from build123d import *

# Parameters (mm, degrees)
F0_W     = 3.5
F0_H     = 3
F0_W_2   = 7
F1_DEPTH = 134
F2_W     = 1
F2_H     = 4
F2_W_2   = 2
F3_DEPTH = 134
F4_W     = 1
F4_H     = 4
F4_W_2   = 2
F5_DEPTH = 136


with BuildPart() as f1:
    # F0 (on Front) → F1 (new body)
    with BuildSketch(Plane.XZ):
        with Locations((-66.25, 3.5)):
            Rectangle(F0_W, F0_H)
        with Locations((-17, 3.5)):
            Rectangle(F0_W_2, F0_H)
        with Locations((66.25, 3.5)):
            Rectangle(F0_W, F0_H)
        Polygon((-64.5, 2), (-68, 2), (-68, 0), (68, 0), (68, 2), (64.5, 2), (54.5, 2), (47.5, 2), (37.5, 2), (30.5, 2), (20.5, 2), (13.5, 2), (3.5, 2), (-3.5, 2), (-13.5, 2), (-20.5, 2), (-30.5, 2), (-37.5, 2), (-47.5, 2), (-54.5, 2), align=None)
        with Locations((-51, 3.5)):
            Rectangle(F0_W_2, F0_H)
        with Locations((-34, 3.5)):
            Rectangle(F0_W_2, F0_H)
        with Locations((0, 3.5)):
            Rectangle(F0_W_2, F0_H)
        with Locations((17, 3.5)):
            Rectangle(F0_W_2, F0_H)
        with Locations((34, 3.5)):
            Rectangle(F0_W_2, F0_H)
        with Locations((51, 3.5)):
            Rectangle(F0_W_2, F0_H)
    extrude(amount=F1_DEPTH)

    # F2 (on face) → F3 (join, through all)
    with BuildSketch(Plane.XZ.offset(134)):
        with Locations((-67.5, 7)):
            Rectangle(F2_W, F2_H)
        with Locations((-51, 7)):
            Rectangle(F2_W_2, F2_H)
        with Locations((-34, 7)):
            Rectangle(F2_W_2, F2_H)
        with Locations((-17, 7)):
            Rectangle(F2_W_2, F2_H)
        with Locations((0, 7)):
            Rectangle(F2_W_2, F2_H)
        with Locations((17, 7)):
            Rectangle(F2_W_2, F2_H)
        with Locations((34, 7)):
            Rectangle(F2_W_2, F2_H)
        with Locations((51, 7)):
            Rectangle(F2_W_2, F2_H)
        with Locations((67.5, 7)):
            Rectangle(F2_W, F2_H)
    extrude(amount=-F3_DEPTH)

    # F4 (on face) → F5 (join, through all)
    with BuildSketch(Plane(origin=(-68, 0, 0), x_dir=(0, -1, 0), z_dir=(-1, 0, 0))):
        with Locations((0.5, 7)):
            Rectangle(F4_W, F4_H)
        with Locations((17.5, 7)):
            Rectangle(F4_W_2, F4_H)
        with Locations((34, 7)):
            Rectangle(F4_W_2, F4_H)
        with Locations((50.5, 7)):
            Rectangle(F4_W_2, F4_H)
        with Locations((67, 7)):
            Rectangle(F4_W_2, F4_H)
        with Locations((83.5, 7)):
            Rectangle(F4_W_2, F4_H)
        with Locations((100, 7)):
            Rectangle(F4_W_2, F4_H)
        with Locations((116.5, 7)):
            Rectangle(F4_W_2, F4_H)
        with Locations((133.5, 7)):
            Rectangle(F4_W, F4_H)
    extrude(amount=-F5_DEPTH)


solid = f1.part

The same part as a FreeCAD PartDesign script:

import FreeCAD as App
import Part
import Sketcher
from FreeCAD import Vector
Q = App.Units.Quantity


def add_polygon(sketch, points):
    """Adds a closed chain of lines whose ends are joined by coincident constraints."""
    first, n = sketch.GeometryCount, len(points)
    for a, b in zip(points, points[1:] + points[:1]):
        sketch.addGeometry(Part.LineSegment(App.Vector(*a, 0), App.Vector(*b, 0)), False)
    for i in range(n):
        sketch.addConstraint(Sketcher.Constraint("Coincident", first + i, 2, first + (i + 1) % n, 1))

doc = App.newDocument("Part")
body = doc.addObject("PartDesign::Body", "Body")

sketch1 = body.newObject("Sketcher::SketchObject", "Sketch")
sketch1.AttachmentSupport = (doc.getObject("XZ_Plane"), [""])
sketch1.MapMode = "FlatFace"
add_polygon(sketch1, [(-68, 5), (-68, 0), (68, 0), (68, 5), (64.5, 5), (64.5, 2), (54.5, 2), (54.5, 5), (47.5, 5), (47.5, 2), (37.5, 2), (37.5, 5), (30.5, 5), (30.5, 2), (20.5, 2), (20.5, 5), (13.5, 5), (13.5, 2), (3.5, 2), (3.5, 5), (-3.5, 5), (-3.5, 2), (-13.5, 2), (-13.5, 5), (-20.5, 5), (-20.5, 2), (-30.5, 2), (-30.5, 5), (-37.5, 5), (-37.5, 2), (-47.5, 2), (-47.5, 5), (-54.5, 5), (-54.5, 2), (-64.5, 2), (-64.5, 5)])
sketch1.addConstraint(Sketcher.Constraint("Vertical", 0))
sketch1.addConstraint(Sketcher.Constraint("Horizontal", 1))
sketch1.addConstraint(Sketcher.Constraint("Vertical", 2))
sketch1.addConstraint(Sketcher.Constraint("Horizontal", 3))
sketch1.addConstraint(Sketcher.Constraint("Vertical", 4))
sketch1.addConstraint(Sketcher.Constraint("Horizontal", 5))
sketch1.addConstraint(Sketcher.Constraint("Vertical", 6))
sketch1.addConstraint(Sketcher.Constraint("Horizontal", 7))
sketch1.addConstraint(Sketcher.Constraint("Vertical", 8))
sketch1.addConstraint(Sketcher.Constraint("Horizontal", 9))
sketch1.addConstraint(Sketcher.Constraint("Vertical", 10))
sketch1.addConstraint(Sketcher.Constraint("Horizontal", 11))
sketch1.addConstraint(Sketcher.Constraint("Vertical", 12))
sketch1.addConstraint(Sketcher.Constraint("Horizontal", 13))
sketch1.addConstraint(Sketcher.Constraint("Vertical", 14))
sketch1.addConstraint(Sketcher.Constraint("Horizontal", 15))
sketch1.addConstraint(Sketcher.Constraint("Vertical", 16))
sketch1.addConstraint(Sketcher.Constraint("Horizontal", 17))
sketch1.addConstraint(Sketcher.Constraint("Vertical", 18))
sketch1.addConstraint(Sketcher.Constraint("Horizontal", 19))
sketch1.addConstraint(Sketcher.Constraint("Vertical", 20))
sketch1.addConstraint(Sketcher.Constraint("Horizontal", 21))
sketch1.addConstraint(Sketcher.Constraint("Vertical", 22))
sketch1.addConstraint(Sketcher.Constraint("Horizontal", 23))
sketch1.addConstraint(Sketcher.Constraint("Vertical", 24))
sketch1.addConstraint(Sketcher.Constraint("Horizontal", 25))
sketch1.addConstraint(Sketcher.Constraint("Vertical", 26))
sketch1.addConstraint(Sketcher.Constraint("Horizontal", 27))
sketch1.addConstraint(Sketcher.Constraint("Vertical", 28))
sketch1.addConstraint(Sketcher.Constraint("Horizontal", 29))
sketch1.addConstraint(Sketcher.Constraint("Vertical", 30))
sketch1.addConstraint(Sketcher.Constraint("Horizontal", 31))
sketch1.addConstraint(Sketcher.Constraint("Vertical", 32))
sketch1.addConstraint(Sketcher.Constraint("Horizontal", 33))
sketch1.addConstraint(Sketcher.Constraint("Vertical", 34))
sketch1.addConstraint(Sketcher.Constraint("Horizontal", 35))
sketch1.addConstraint(Sketcher.Constraint("Symmetric", 0, 2, 1, 2, -1, 1))
sketch1.addConstraint(Sketcher.Constraint("Symmetric", 17, 2, 20, 2, -2))
sketch1.addConstraint(Sketcher.Constraint("Symmetric", 15, 2, 22, 2, -2))
sketch1.addConstraint(Sketcher.Constraint("Symmetric", 13, 2, 24, 2, -2))
sketch1.addConstraint(Sketcher.Constraint("Symmetric", 11, 2, 26, 2, -2))
sketch1.addConstraint(Sketcher.Constraint("Symmetric", 9, 2, 28, 2, -2))
sketch1.addConstraint(Sketcher.Constraint("Symmetric", 7, 2, 30, 2, -2))
sketch1.addConstraint(Sketcher.Constraint("Symmetric", 5, 2, 32, 2, -2))
sketch1.addConstraint(Sketcher.Constraint("Symmetric", 3, 2, 34, 2, -2))
sketch1.addConstraint(Sketcher.Constraint("Horizontal", 3, 2, 6, 2))
sketch1.addConstraint(Sketcher.Constraint("Horizontal", 5, 2, 8, 2))
sketch1.addConstraint(Sketcher.Constraint("Horizontal", 7, 2, 10, 2))
sketch1.addConstraint(Sketcher.Constraint("Horizontal", 9, 2, 12, 2))
sketch1.addConstraint(Sketcher.Constraint("Horizontal", 11, 2, 14, 2))
sketch1.addConstraint(Sketcher.Constraint("Horizontal", 13, 2, 16, 2))
sketch1.addConstraint(Sketcher.Constraint("Horizontal", 15, 2, 18, 2))
sketch1.addConstraint(Sketcher.Constraint("Equal", 5, 9))
sketch1.addConstraint(Sketcher.Constraint("Equal", 7, 11))
sketch1.addConstraint(Sketcher.Constraint("Equal", 9, 13))
sketch1.addConstraint(Sketcher.Constraint("Equal", 11, 15))
sketch1.addConstraint(Sketcher.Constraint("Equal", 13, 17))
sketch1.addConstraint(Sketcher.Constraint("Equal", 15, 19))
sketch1.addConstraint(Sketcher.Constraint("DistanceX", 1, 1, 1, 2, Q("136 mm")))
sketch1.addConstraint(Sketcher.Constraint("DistanceX", 5, 2, 5, 1, Q("10 mm")))
sketch1.addConstraint(Sketcher.Constraint("DistanceX", 7, 2, 7, 1, Q("7 mm")))
sketch1.addConstraint(Sketcher.Constraint("DistanceY", 0, 2, 0, 1, Q("5 mm")))
sketch1.addConstraint(Sketcher.Constraint("DistanceY", 4, 2, 4, 1, Q("3 mm")))
pad1 = body.newObject("PartDesign::Pad", "Pad")
pad1.Profile = sketch1
pad1.Length = 134

sketch2 = body.newObject("Sketcher::SketchObject", "Sketch001")
sketch2.AttachmentSupport = (doc.getObject("XZ_Plane"), [""])
sketch2.MapMode = "FlatFace"
sketch2.AttachmentOffset = App.Placement(Vector(0, 0, 134), App.Rotation())
add_polygon(sketch2, [(-68, 9), (-68, 5), (-67, 5), (-67, 9)])
add_polygon(sketch2, [(-52, 9), (-52, 5), (-50, 5), (-50, 9)])
add_polygon(sketch2, [(-35, 9), (-35, 5), (-33, 5), (-33, 9)])
add_polygon(sketch2, [(-18, 9), (-18, 5), (-16, 5), (-16, 9)])
add_polygon(sketch2, [(-1, 9), (-1, 5), (1, 5), (1, 9)])
add_polygon(sketch2, [(16, 9), (16, 5), (18, 5), (18, 9)])
add_polygon(sketch2, [(33, 9), (33, 5), (35, 5), (35, 9)])
add_polygon(sketch2, [(50, 9), (50, 5), (52, 5), (52, 9)])
add_polygon(sketch2, [(67, 9), (67, 5), (68, 5), (68, 9)])
sketch2.addConstraint(Sketcher.Constraint("Vertical", 0))
sketch2.addConstraint(Sketcher.Constraint("Horizontal", 1))
sketch2.addConstraint(Sketcher.Constraint("Vertical", 2))
sketch2.addConstraint(Sketcher.Constraint("Horizontal", 3))
sketch2.addConstraint(Sketcher.Constraint("Vertical", 4))
sketch2.addConstraint(Sketcher.Constraint("Horizontal", 5))
sketch2.addConstraint(Sketcher.Constraint("Vertical", 6))
sketch2.addConstraint(Sketcher.Constraint("Horizontal", 7))
sketch2.addConstraint(Sketcher.Constraint("Vertical", 8))
sketch2.addConstraint(Sketcher.Constraint("Horizontal", 9))
sketch2.addConstraint(Sketcher.Constraint("Vertical", 10))
sketch2.addConstraint(Sketcher.Constraint("Horizontal", 11))
sketch2.addConstraint(Sketcher.Constraint("Vertical", 12))
sketch2.addConstraint(Sketcher.Constraint("Horizontal", 13))
sketch2.addConstraint(Sketcher.Constraint("Vertical", 14))
sketch2.addConstraint(Sketcher.Constraint("Horizontal", 15))
sketch2.addConstraint(Sketcher.Constraint("Vertical", 16))
sketch2.addConstraint(Sketcher.Constraint("Horizontal", 17))
sketch2.addConstraint(Sketcher.Constraint("Vertical", 18))
sketch2.addConstraint(Sketcher.Constraint("Horizontal", 19))
sketch2.addConstraint(Sketcher.Constraint("Vertical", 20))
sketch2.addConstraint(Sketcher.Constraint("Horizontal", 21))
sketch2.addConstraint(Sketcher.Constraint("Vertical", 22))
sketch2.addConstraint(Sketcher.Constraint("Horizontal", 23))
sketch2.addConstraint(Sketcher.Constraint("Vertical", 24))
sketch2.addConstraint(Sketcher.Constraint("Horizontal", 25))
sketch2.addConstraint(Sketcher.Constraint("Vertical", 26))
sketch2.addConstraint(Sketcher.Constraint("Horizontal", 27))
sketch2.addConstraint(Sketcher.Constraint("Vertical", 28))
sketch2.addConstraint(Sketcher.Constraint("Horizontal", 29))
sketch2.addConstraint(Sketcher.Constraint("Vertical", 30))
sketch2.addConstraint(Sketcher.Constraint("Horizontal", 31))
sketch2.addConstraint(Sketcher.Constraint("Vertical", 32))
sketch2.addConstraint(Sketcher.Constraint("Horizontal", 33))
sketch2.addConstraint(Sketcher.Constraint("Vertical", 34))
sketch2.addConstraint(Sketcher.Constraint("Horizontal", 35))
sketch2.addConstraint(Sketcher.Constraint("Symmetric", 13, 2, 20, 2, -2))
sketch2.addConstraint(Sketcher.Constraint("Symmetric", 15, 2, 22, 2, -2))
sketch2.addConstraint(Sketcher.Constraint("Symmetric", 9, 2, 24, 2, -2))
sketch2.addConstraint(Sketcher.Constraint("Symmetric", 11, 2, 26, 2, -2))
sketch2.addConstraint(Sketcher.Constraint("Symmetric", 5, 2, 28, 2, -2))
sketch2.addConstraint(Sketcher.Constraint("Symmetric", 7, 2, 30, 2, -2))
sketch2.addConstraint(Sketcher.Constraint("Symmetric", 1, 2, 32, 2, -2))
sketch2.addConstraint(Sketcher.Constraint("Symmetric", 3, 2, 34, 2, -2))
sketch2.addConstraint(Sketcher.Constraint("Horizontal", 1, 2, 4, 2))
sketch2.addConstraint(Sketcher.Constraint("Horizontal", 3, 2, 6, 2))
sketch2.addConstraint(Sketcher.Constraint("Horizontal", 5, 2, 8, 2))
sketch2.addConstraint(Sketcher.Constraint("Horizontal", 7, 2, 10, 2))
sketch2.addConstraint(Sketcher.Constraint("Horizontal", 9, 2, 12, 2))
sketch2.addConstraint(Sketcher.Constraint("Horizontal", 11, 2, 14, 2))
sketch2.addConstraint(Sketcher.Constraint("Horizontal", 13, 2, 16, 2))
sketch2.addConstraint(Sketcher.Constraint("Horizontal", 15, 2, 18, 2))
sketch2.addConstraint(Sketcher.Constraint("Equal", 7, 9))
sketch2.addConstraint(Sketcher.Constraint("Equal", 11, 13))
sketch2.addConstraint(Sketcher.Constraint("Equal", 15, 17))
sketch2.addConstraint(Sketcher.Constraint("DistanceX", 1, 1, 1, 2, Q("1 mm")))
sketch2.addConstraint(Sketcher.Constraint("DistanceX", 5, 1, 5, 2, Q("2 mm")))
sketch2.addConstraint(Sketcher.Constraint("DistanceY", 0, 2, 0, 1, Q("4 mm")))
sketch2.addConstraint(Sketcher.Constraint("DistanceX", 0, 2, -1, 1, Q("68 mm")))
sketch2.addConstraint(Sketcher.Constraint("DistanceY", -1, 1, 0, 2, Q("5 mm")))
sketch2.addConstraint(Sketcher.Constraint("DistanceX", 4, 2, -1, 1, Q("52 mm")))
sketch2.addConstraint(Sketcher.Constraint("DistanceX", 8, 2, -1, 1, Q("35 mm")))
sketch2.addConstraint(Sketcher.Constraint("DistanceX", 12, 2, -1, 1, Q("18 mm")))
sketch2.addConstraint(Sketcher.Constraint("DistanceX", 16, 2, -1, 1, Q("1 mm")))
pad2 = body.newObject("PartDesign::Pad", "Pad001")
pad2.Profile = sketch2
pad2.Length = 134
pad2.Reversed = True

sketch3 = body.newObject("Sketcher::SketchObject", "Sketch002")
sketch3.AttachmentSupport = (doc.getObject("YZ_Plane"), [""])
sketch3.MapMode = "FlatFace"
sketch3.AttachmentOffset = App.Placement(Vector(0, 0, -68), App.Rotation())
add_polygon(sketch3, [(0, 9), (0, 5), (-1, 5), (-1, 9)])
add_polygon(sketch3, [(-16.5, 9), (-16.5, 5), (-18.5, 5), (-18.5, 9)])
add_polygon(sketch3, [(-33, 9), (-33, 5), (-35, 5), (-35, 9)])
add_polygon(sketch3, [(-49.5, 9), (-49.5, 5), (-51.5, 5), (-51.5, 9)])
add_polygon(sketch3, [(-66, 9), (-66, 5), (-68, 5), (-68, 9)])
add_polygon(sketch3, [(-82.5, 9), (-82.5, 5), (-84.5, 5), (-84.5, 9)])
add_polygon(sketch3, [(-99, 9), (-99, 5), (-101, 5), (-101, 9)])
add_polygon(sketch3, [(-115.5, 9), (-115.5, 5), (-117.5, 5), (-117.5, 9)])
add_polygon(sketch3, [(-133, 9), (-133, 5), (-134, 5), (-134, 9)])
sketch3.addConstraint(Sketcher.Constraint("Vertical", 0))
sketch3.addConstraint(Sketcher.Constraint("Horizontal", 1))
sketch3.addConstraint(Sketcher.Constraint("Vertical", 2))
sketch3.addConstraint(Sketcher.Constraint("Horizontal", 3))
sketch3.addConstraint(Sketcher.Constraint("Vertical", 4))
sketch3.addConstraint(Sketcher.Constraint("Horizontal", 5))
sketch3.addConstraint(Sketcher.Constraint("Vertical", 6))
sketch3.addConstraint(Sketcher.Constraint("Horizontal", 7))
sketch3.addConstraint(Sketcher.Constraint("Vertical", 8))
sketch3.addConstraint(Sketcher.Constraint("Horizontal", 9))
sketch3.addConstraint(Sketcher.Constraint("Vertical", 10))
sketch3.addConstraint(Sketcher.Constraint("Horizontal", 11))
sketch3.addConstraint(Sketcher.Constraint("Vertical", 12))
sketch3.addConstraint(Sketcher.Constraint("Horizontal", 13))
sketch3.addConstraint(Sketcher.Constraint("Vertical", 14))
sketch3.addConstraint(Sketcher.Constraint("Horizontal", 15))
sketch3.addConstraint(Sketcher.Constraint("Vertical", 16))
sketch3.addConstraint(Sketcher.Constraint("Horizontal", 17))
sketch3.addConstraint(Sketcher.Constraint("Vertical", 18))
sketch3.addConstraint(Sketcher.Constraint("Horizontal", 19))
sketch3.addConstraint(Sketcher.Constraint("Vertical", 20))
sketch3.addConstraint(Sketcher.Constraint("Horizontal", 21))
sketch3.addConstraint(Sketcher.Constraint("Vertical", 22))
sketch3.addConstraint(Sketcher.Constraint("Horizontal", 23))
sketch3.addConstraint(Sketcher.Constraint("Vertical", 24))
sketch3.addConstraint(Sketcher.Constraint("Horizontal", 25))
sketch3.addConstraint(Sketcher.Constraint("Vertical", 26))
sketch3.addConstraint(Sketcher.Constraint("Horizontal", 27))
sketch3.addConstraint(Sketcher.Constraint("Vertical", 28))
sketch3.addConstraint(Sketcher.Constraint("Horizontal", 29))
sketch3.addConstraint(Sketcher.Constraint("Vertical", 30))
sketch3.addConstraint(Sketcher.Constraint("Horizontal", 31))
sketch3.addConstraint(Sketcher.Constraint("Vertical", 32))
sketch3.addConstraint(Sketcher.Constraint("Horizontal", 33))
sketch3.addConstraint(Sketcher.Constraint("Vertical", 34))
sketch3.addConstraint(Sketcher.Constraint("Horizontal", 35))
sketch3.addConstraint(Sketcher.Constraint("PointOnObject", 0, 2, -2))
sketch3.addConstraint(Sketcher.Constraint("Horizontal", 1, 2, 4, 2))
sketch3.addConstraint(Sketcher.Constraint("Horizontal", 3, 2, 6, 2))
sketch3.addConstraint(Sketcher.Constraint("Horizontal", 5, 2, 8, 2))
sketch3.addConstraint(Sketcher.Constraint("Horizontal", 7, 2, 10, 2))
sketch3.addConstraint(Sketcher.Constraint("Horizontal", 9, 2, 12, 2))
sketch3.addConstraint(Sketcher.Constraint("Horizontal", 11, 2, 14, 2))
sketch3.addConstraint(Sketcher.Constraint("Horizontal", 13, 2, 16, 2))
sketch3.addConstraint(Sketcher.Constraint("Horizontal", 15, 2, 18, 2))
sketch3.addConstraint(Sketcher.Constraint("Horizontal", 17, 2, 20, 2))
sketch3.addConstraint(Sketcher.Constraint("Horizontal", 19, 2, 22, 2))
sketch3.addConstraint(Sketcher.Constraint("Horizontal", 21, 2, 24, 2))
sketch3.addConstraint(Sketcher.Constraint("Horizontal", 23, 2, 26, 2))
sketch3.addConstraint(Sketcher.Constraint("Horizontal", 25, 2, 28, 2))
sketch3.addConstraint(Sketcher.Constraint("Horizontal", 27, 2, 30, 2))
sketch3.addConstraint(Sketcher.Constraint("Horizontal", 29, 2, 32, 2))
sketch3.addConstraint(Sketcher.Constraint("Horizontal", 31, 2, 34, 2))
sketch3.addConstraint(Sketcher.Constraint("Equal", 7, 9))
sketch3.addConstraint(Sketcher.Constraint("Equal", 11, 13))
sketch3.addConstraint(Sketcher.Constraint("Equal", 15, 17))
sketch3.addConstraint(Sketcher.Constraint("Equal", 19, 21))
sketch3.addConstraint(Sketcher.Constraint("Equal", 23, 25))
sketch3.addConstraint(Sketcher.Constraint("Equal", 27, 29))
sketch3.addConstraint(Sketcher.Constraint("Equal", 3, 33))
sketch3.addConstraint(Sketcher.Constraint("DistanceX", 1, 2, 1, 1, Q("1 mm")))
sketch3.addConstraint(Sketcher.Constraint("DistanceX", 5, 2, 5, 1, Q("2 mm")))
sketch3.addConstraint(Sketcher.Constraint("DistanceY", 0, 2, 0, 1, Q("4 mm")))
sketch3.addConstraint(Sketcher.Constraint("DistanceY", -1, 1, 0, 2, Q("5 mm")))
sketch3.addConstraint(Sketcher.Constraint("DistanceX", 8, 2, -1, 1, Q("33 mm")))
sketch3.addConstraint(Sketcher.Constraint("DistanceX", 16, 2, -1, 1, Q("66 mm")))
sketch3.addConstraint(Sketcher.Constraint("DistanceX", 24, 2, -1, 1, Q("99 mm")))
sketch3.addConstraint(Sketcher.Constraint("DistanceX", 32, 2, -1, 1, Q("133 mm")))
sketch3.addConstraint(Sketcher.Constraint("DistanceX", 12, 2, 5, 2, Q("31 mm")))
sketch3.addConstraint(Sketcher.Constraint("DistanceX", 20, 2, 13, 2, Q("31 mm")))
sketch3.addConstraint(Sketcher.Constraint("DistanceX", 28, 2, 21, 2, Q("31 mm")))
sketch3.addConstraint(Sketcher.Constraint("DistanceX", 4, 2, -1, 1, Q("16.5 mm")))
pad3 = body.newObject("PartDesign::Pad", "Pad002")
pad3.Profile = sketch3
pad3.Type = "UpToLast"

doc.recompute()
